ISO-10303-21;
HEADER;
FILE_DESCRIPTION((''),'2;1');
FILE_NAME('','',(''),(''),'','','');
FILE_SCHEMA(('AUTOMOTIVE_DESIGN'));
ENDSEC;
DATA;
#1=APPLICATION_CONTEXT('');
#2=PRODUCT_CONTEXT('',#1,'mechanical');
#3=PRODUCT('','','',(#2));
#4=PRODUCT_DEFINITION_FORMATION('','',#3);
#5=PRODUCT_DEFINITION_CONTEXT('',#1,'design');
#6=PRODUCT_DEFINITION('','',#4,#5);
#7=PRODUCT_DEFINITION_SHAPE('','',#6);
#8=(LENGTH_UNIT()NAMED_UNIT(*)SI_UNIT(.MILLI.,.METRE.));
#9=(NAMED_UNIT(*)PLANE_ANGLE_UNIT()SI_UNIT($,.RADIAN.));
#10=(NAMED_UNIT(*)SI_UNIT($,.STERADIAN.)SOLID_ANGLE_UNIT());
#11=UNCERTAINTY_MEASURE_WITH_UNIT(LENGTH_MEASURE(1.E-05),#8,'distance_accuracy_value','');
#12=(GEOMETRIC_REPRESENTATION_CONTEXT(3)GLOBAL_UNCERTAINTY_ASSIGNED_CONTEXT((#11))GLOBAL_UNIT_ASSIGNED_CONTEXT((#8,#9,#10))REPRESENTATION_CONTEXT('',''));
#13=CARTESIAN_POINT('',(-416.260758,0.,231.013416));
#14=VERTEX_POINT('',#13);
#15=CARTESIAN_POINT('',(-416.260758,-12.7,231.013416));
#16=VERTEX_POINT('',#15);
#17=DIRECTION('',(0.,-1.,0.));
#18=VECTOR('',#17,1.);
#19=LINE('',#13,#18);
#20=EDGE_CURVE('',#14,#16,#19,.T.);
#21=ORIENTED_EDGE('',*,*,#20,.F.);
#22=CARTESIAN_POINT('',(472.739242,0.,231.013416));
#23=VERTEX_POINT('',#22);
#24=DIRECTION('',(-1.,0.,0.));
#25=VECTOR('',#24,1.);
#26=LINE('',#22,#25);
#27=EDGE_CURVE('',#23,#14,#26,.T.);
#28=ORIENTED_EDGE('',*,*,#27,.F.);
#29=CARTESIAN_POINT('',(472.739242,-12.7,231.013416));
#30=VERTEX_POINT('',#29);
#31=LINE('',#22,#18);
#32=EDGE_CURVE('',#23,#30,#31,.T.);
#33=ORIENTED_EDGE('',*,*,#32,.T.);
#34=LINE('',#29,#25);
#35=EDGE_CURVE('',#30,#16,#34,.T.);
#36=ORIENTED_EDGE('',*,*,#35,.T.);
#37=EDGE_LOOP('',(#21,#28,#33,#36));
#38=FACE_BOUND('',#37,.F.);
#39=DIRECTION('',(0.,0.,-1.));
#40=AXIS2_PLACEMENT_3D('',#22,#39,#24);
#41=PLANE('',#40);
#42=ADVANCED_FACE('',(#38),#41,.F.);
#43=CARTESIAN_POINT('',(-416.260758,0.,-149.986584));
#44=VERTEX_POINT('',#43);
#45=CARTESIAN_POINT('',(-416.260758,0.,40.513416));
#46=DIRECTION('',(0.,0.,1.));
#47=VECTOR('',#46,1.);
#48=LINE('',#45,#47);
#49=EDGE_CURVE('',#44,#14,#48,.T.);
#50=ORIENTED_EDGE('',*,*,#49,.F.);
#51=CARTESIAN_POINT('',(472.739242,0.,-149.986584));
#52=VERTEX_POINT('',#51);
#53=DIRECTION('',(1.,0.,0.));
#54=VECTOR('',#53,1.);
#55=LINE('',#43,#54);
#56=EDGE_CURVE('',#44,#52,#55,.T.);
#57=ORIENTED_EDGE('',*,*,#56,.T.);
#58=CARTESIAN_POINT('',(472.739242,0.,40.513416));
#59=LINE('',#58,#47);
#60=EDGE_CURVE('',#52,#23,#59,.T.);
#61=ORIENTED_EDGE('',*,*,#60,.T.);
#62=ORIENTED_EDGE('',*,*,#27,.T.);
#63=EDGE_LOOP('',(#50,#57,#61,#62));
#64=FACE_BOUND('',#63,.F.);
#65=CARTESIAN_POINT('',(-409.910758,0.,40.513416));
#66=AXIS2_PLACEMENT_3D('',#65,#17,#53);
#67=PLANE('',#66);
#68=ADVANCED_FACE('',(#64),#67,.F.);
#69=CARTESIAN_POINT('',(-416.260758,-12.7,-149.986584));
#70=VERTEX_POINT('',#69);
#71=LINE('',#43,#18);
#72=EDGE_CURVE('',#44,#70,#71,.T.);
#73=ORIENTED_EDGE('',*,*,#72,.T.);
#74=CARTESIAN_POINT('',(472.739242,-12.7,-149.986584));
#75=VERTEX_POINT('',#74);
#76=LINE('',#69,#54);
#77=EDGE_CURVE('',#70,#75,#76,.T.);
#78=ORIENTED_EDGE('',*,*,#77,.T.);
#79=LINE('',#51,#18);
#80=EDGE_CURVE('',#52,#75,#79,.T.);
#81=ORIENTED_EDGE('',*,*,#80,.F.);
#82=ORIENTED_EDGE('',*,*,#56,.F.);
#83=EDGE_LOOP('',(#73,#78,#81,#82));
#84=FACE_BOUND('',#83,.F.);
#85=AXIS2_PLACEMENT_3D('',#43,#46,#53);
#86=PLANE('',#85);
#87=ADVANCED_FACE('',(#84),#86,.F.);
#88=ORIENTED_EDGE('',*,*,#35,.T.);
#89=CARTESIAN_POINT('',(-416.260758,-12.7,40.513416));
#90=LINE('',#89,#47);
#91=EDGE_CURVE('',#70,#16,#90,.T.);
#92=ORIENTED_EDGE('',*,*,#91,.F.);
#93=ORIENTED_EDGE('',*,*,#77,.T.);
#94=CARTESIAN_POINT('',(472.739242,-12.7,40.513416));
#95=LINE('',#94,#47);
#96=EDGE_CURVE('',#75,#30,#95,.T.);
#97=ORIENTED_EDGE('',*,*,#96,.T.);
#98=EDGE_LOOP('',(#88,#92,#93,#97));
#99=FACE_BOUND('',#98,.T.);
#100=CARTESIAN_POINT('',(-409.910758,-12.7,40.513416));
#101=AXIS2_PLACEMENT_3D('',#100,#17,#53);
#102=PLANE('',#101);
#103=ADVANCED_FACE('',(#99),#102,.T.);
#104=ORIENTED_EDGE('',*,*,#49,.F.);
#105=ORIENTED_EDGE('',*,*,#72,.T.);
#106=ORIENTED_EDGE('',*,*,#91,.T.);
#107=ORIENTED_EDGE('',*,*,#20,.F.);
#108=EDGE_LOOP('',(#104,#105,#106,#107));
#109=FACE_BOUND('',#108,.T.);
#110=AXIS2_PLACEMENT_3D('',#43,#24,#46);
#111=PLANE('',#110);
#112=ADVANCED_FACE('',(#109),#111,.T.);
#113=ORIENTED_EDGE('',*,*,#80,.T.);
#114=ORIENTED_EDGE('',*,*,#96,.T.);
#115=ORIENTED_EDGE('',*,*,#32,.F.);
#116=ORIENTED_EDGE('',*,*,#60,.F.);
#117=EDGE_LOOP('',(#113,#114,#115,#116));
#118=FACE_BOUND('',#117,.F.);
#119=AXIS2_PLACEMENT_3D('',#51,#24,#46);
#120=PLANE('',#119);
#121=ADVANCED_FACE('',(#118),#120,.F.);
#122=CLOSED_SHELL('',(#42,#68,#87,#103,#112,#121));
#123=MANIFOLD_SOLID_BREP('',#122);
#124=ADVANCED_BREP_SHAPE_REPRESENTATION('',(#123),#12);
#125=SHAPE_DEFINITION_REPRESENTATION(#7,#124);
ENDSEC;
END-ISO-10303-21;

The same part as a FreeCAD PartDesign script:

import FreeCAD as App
import Part
import Sketcher

V = App.Vector
Q = App.Units.Quantity

doc = App.newDocument("Part")
body = doc.addObject("PartDesign::Body", "Body")

sketch1 = doc.addObject("Sketcher::SketchObject", "Sketch")
body.addObject(sketch1)
sketch1.AttachmentSupport = (doc.XZ_Plane, [""])
sketch1.MapMode = "FlatFace"
sketch1.addGeometry([
    Part.LineSegment(V(-416, 231, 0), V(-416, -150, 0)),
    Part.LineSegment(V(-416, -150, 0), V(473, -150, 0)),
    Part.LineSegment(V(473, -150, 0), V(473, 231, 0)),
    Part.LineSegment(V(473, 231, 0), V(-416, 231, 0)),
], False)
sketch1.addConstraint([
    Sketcher.Constraint("Coincident", 0, 2, 1, 1),
    Sketcher.Constraint("Coincident", 1, 2, 2, 1),
    Sketcher.Constraint("Coincident", 2, 2, 3, 1),
    Sketcher.Constraint("Coincident", 3, 2, 0, 1),
    Sketcher.Constraint("Vertical", 0),
    Sketcher.Constraint("Horizontal", 1),
    Sketcher.Constraint("Vertical", 2),
    Sketcher.Constraint("Horizontal", 3),
    Sketcher.Constraint("DistanceX", 1, 1, 1, 2, Q("35 in")),
    Sketcher.Constraint("DistanceY", 0, 2, 0, 1, Q("15 in")),
    Sketcher.Constraint("DistanceX", 0, 2, -1, 1, Q("416.260758 mm")),
    Sketcher.Constraint("DistanceY", 0, 2, -1, 1, Q("149.986584 mm")),
])
pad1 = doc.addObject("PartDesign::Pad", "Pad")
body.addObject(pad1)
pad1.Profile = sketch1
pad1.Length = Q("0.5 in")

doc.recompute()
